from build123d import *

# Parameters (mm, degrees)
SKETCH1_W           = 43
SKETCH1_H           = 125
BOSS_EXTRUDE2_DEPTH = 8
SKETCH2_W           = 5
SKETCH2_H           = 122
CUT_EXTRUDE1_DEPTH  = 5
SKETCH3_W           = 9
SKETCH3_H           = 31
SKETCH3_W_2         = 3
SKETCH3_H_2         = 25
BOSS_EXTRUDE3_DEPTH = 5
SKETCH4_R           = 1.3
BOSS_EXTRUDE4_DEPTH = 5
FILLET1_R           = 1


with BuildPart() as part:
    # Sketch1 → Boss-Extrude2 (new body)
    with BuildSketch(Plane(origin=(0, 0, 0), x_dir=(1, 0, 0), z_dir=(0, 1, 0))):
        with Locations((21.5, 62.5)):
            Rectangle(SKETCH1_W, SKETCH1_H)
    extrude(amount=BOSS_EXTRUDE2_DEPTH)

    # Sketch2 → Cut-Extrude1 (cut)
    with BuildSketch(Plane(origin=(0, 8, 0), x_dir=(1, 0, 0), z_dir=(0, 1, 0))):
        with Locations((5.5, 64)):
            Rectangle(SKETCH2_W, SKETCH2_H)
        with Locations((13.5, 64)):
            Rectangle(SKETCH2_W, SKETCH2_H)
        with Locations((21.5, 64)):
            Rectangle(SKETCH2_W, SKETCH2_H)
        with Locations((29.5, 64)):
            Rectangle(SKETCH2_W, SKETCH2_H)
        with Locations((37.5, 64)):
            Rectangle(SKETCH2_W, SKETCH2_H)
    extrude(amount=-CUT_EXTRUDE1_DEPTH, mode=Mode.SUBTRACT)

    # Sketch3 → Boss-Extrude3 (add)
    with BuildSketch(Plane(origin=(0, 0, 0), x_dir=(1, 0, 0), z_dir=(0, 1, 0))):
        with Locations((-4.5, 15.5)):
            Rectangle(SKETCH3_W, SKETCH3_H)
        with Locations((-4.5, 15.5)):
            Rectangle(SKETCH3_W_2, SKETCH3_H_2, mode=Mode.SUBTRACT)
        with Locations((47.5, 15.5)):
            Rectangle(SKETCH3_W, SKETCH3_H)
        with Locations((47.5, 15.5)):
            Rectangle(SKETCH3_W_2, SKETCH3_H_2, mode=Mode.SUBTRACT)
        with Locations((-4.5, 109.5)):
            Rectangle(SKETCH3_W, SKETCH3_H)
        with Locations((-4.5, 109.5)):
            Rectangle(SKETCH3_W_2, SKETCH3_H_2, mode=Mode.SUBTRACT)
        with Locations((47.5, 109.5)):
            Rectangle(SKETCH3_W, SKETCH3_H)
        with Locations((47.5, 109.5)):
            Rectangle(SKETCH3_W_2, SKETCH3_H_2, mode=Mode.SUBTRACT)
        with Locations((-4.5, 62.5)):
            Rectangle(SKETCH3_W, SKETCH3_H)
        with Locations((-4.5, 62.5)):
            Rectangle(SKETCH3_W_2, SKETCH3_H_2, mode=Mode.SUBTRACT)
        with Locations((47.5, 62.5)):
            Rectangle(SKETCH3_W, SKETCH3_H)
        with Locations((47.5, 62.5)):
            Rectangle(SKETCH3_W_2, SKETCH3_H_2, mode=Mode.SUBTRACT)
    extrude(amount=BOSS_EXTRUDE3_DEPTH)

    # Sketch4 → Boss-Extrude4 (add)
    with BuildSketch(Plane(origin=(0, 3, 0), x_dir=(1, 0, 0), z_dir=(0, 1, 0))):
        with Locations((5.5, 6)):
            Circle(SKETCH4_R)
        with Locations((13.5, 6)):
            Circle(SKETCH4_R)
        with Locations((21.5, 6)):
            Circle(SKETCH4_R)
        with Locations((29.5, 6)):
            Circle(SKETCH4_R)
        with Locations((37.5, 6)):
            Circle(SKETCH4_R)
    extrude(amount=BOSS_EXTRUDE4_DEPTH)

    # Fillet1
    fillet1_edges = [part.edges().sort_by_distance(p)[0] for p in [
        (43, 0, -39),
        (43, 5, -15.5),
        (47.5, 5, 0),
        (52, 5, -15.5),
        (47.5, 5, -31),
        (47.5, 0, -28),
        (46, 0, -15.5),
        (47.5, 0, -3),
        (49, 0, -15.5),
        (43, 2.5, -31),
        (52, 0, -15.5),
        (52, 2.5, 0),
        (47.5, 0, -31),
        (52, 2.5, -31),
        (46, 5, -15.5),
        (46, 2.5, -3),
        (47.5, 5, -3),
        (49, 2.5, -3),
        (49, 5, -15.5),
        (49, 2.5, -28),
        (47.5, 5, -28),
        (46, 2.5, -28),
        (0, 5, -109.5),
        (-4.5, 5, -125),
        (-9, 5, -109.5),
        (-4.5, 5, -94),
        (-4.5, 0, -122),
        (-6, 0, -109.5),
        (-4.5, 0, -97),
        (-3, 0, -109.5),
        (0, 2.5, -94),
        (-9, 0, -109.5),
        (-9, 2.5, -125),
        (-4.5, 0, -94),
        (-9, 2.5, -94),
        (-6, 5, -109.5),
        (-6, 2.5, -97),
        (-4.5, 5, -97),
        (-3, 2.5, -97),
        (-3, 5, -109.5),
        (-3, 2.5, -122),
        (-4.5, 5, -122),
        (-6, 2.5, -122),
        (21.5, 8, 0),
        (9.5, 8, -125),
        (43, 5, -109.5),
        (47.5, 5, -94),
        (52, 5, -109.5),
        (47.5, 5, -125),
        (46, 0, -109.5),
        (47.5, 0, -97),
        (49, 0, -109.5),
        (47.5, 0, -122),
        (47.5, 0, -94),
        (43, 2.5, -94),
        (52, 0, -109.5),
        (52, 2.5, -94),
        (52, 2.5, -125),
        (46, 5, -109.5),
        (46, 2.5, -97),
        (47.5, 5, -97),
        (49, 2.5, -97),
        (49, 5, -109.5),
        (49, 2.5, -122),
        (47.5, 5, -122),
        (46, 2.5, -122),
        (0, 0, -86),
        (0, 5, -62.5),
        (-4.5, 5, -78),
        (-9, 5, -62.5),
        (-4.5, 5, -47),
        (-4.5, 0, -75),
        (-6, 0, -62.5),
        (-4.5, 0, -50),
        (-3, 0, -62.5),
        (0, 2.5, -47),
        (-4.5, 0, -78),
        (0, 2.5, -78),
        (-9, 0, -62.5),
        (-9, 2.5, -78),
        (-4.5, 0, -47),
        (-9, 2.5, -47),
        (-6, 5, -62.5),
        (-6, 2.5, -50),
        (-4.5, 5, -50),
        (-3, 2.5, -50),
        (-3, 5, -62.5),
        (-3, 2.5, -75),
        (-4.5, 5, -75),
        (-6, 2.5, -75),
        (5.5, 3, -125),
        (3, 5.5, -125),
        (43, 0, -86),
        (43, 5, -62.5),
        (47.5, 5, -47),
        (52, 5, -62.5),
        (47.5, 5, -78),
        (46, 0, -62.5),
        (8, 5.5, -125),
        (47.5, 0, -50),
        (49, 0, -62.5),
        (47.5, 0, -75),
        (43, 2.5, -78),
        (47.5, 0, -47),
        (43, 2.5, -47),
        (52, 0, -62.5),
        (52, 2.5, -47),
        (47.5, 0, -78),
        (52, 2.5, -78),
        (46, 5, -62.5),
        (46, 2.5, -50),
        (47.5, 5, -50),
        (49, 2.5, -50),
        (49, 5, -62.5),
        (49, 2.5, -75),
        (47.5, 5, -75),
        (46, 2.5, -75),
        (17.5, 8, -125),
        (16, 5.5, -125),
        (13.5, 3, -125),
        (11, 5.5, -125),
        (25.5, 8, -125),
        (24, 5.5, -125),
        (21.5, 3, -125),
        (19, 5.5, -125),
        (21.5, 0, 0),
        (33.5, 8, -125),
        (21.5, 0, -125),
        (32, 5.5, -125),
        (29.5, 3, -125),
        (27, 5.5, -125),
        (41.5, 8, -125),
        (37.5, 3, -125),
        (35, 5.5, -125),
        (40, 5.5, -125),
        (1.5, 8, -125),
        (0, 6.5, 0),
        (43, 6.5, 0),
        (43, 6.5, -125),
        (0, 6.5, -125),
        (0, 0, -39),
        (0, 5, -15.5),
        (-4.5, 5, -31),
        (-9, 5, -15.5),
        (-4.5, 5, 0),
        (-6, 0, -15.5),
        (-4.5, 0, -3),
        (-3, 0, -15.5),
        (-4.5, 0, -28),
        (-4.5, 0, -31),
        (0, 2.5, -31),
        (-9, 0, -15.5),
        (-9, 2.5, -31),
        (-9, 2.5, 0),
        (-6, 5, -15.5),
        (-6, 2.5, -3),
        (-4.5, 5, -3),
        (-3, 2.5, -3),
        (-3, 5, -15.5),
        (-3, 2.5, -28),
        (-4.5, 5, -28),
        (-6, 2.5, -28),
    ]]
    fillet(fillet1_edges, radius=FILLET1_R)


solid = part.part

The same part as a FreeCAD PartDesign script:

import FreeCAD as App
import Part
import Sketcher


def edges_at(feature, points):
    """Names of the edges that pass closest to the given points."""
    edges = feature.Shape.Edges
    near = lambda p: min(range(len(edges)), key=lambda i: edges[i].distToShape(Part.Vertex(*p))[0])
    return sorted({f"Edge{near(p) + 1}" for p in points})


def add_polygon(sketch, points):
    """Adds a closed chain of lines whose ends are joined by coincident constraints."""
    first, n = sketch.GeometryCount, len(points)
    for a, b in zip(points, points[1:] + points[:1]):
        sketch.addGeometry(Part.LineSegment(App.Vector(*a, 0), App.Vector(*b, 0)), False)
    for i in range(n):
        sketch.addConstraint(Sketcher.Constraint("Coincident", first + i, 2, first + (i + 1) % n, 1))

doc = App.newDocument("Part")
body = doc.addObject("PartDesign::Body", "Body")

# Sketch on XZ plane
sketch1 = body.newObject("Sketcher::SketchObject", "Sketch")
sketch1.AttachmentSupport = (doc.getObject("XZ_Plane"), [""])
sketch1.MapMode = "FlatFace"
add_polygon(sketch1, [(0, -125), (0, 0), (43, 0), (43, -125)])  # lines 0-3
sketch1.addConstraint(Sketcher.Constraint("Vertical", 0))
sketch1.addConstraint(Sketcher.Constraint("Horizontal", 1))
sketch1.addConstraint(Sketcher.Constraint("Vertical", 2))
sketch1.addConstraint(Sketcher.Constraint("Horizontal", 3))
sketch1.addConstraint(Sketcher.Constraint("Coincident", 0, 2, -1, 1))
sketch1.addConstraint(Sketcher.Constraint("DistanceX", 1, 1, 1, 2, 43.0))
sketch1.addConstraint(Sketcher.Constraint("DistanceY", 0, 1, 0, 2, 125.0))
pad1 = body.newObject("PartDesign::Pad", "Pad")
pad1.Profile = sketch1
pad1.Length = 8
pad1.Reversed = True

# Sketch on XZ plane
sketch2 = body.newObject("Sketcher::SketchObject", "Sketch001")
sketch2.AttachmentSupport = (doc.getObject("XZ_Plane"), [""])
sketch2.MapMode = "FlatFace"
sketch2.AttachmentOffset = App.Placement(App.Vector(0, 0, -8), App.Rotation())
add_polygon(sketch2, [(3, -125), (3, -3), (8, -3), (8, -125)])  # lines 0-3
add_polygon(sketch2, [(11, -125), (11, -3), (16, -3), (16, -125)])  # lines 4-7
add_polygon(sketch2, [(19, -125), (19, -3), (24, -3), (24, -125)])  # lines 8-11
add_polygon(sketch2, [(27, -125), (27, -3), (32, -3), (32, -125)])  # lines 12-15
add_polygon(sketch2, [(35, -125), (35, -3), (40, -3), (40, -125)])  # lines 16-19
sketch2.addConstraint(Sketcher.Constraint("Vertical", 0))
sketch2.addConstraint(Sketcher.Constraint("Horizontal", 1))
sketch2.addConstraint(Sketcher.Constraint("Vertical", 2))
sketch2.addConstraint(Sketcher.Constraint("Horizontal", 3))
sketch2.addConstraint(Sketcher.Constraint("Vertical", 4))
sketch2.addConstraint(Sketcher.Constraint("Horizontal", 5))
sketch2.addConstraint(Sketcher.Constraint("Vertical", 6))
sketch2.addConstraint(Sketcher.Constraint("Horizontal", 7))
sketch2.addConstraint(Sketcher.Constraint("Vertical", 8))
sketch2.addConstraint(Sketcher.Constraint("Horizontal", 9))
sketch2.addConstraint(Sketcher.Constraint("Vertical", 10))
sketch2.addConstraint(Sketcher.Constraint("Horizontal", 11))
sketch2.addConstraint(Sketcher.Constraint("Vertical", 12))
sketch2.addConstraint(Sketcher.Constraint("Horizontal", 13))
sketch2.addConstraint(Sketcher.Constraint("Vertical", 14))
sketch2.addConstraint(Sketcher.Constraint("Horizontal", 15))
sketch2.addConstraint(Sketcher.Constraint("Vertical", 16))
sketch2.addConstraint(Sketcher.Constraint("Horizontal", 17))
sketch2.addConstraint(Sketcher.Constraint("Vertical", 18))
sketch2.addConstraint(Sketcher.Constraint("Horizontal", 19))
sketch2.addConstraint(Sketcher.Constraint("Horizontal", 1, 2, 4, 2))
sketch2.addConstraint(Sketcher.Constraint("Horizontal", 3, 2, 6, 2))
sketch2.addConstraint(Sketcher.Constraint("Horizontal", 5, 2, 8, 2))
sketch2.addConstraint(Sketcher.Constraint("Horizontal", 7, 2, 10, 2))
sketch2.addConstraint(Sketcher.Constraint("Horizontal", 9, 2, 12, 2))
sketch2.addConstraint(Sketcher.Constraint("Horizontal", 11, 2, 14, 2))
sketch2.addConstraint(Sketcher.Constraint("Horizontal", 13, 2, 16, 2))
sketch2.addConstraint(Sketcher.Constraint("Horizontal", 15, 2, 18, 2))
sketch2.addConstraint(Sketcher.Constraint("Equal", 3, 5))
sketch2.addConstraint(Sketcher.Constraint("Equal", 7, 9))
sketch2.addConstraint(Sketcher.Constraint("Equal", 11, 13))
sketch2.addConstraint(Sketcher.Constraint("Equal", 15, 17))
sketch2.addConstraint(Sketcher.Constraint("DistanceX", 1, 1, 1, 2, 5.0))
sketch2.addConstraint(Sketcher.Constraint("DistanceY", 0, 1, 0, 2, 122.0))
sketch2.addConstraint(Sketcher.Constraint("DistanceX", -1, 1, 0, 2, 3.0))
sketch2.addConstraint(Sketcher.Constraint("DistanceY", 0, 2, -1, 1, 3.0))
sketch2.addConstraint(Sketcher.Constraint("DistanceX", -1, 1, 4, 2, 11.0))
sketch2.addConstraint(Sketcher.Constraint("DistanceX", -1, 1, 8, 2, 19.0))
sketch2.addConstraint(Sketcher.Constraint("DistanceX", -1, 1, 12, 2, 27.0))
sketch2.addConstraint(Sketcher.Constraint("DistanceX", -1, 1, 16, 2, 35.0))
pocket1 = body.newObject("PartDesign::Pocket", "Pocket")
pocket1.Profile = sketch2
pocket1.Length = 5
pocket1.Reversed = True

# Sketch on XZ plane
sketch3 = body.newObject("Sketcher::SketchObject", "Sketch002")
sketch3.AttachmentSupport = (doc.getObject("XZ_Plane"), [""])
sketch3.MapMode = "FlatFace"
add_polygon(sketch3, [(-9, -31), (-9, 0), (0, 0), (0, -31)])  # lines 0-3
add_polygon(sketch3, [(-3, -3), (-6, -3), (-6, -28), (-3, -28)])  # lines 4-7
add_polygon(sketch3, [(43, -31), (43, 0), (52, 0), (52, -31)])  # lines 8-11
add_polygon(sketch3, [(49, -3), (46, -3), (46, -28), (49, -28)])  # lines 12-15
add_polygon(sketch3, [(-9, -125), (-9, -94), (0, -94), (0, -125)])  # lines 16-19
add_polygon(sketch3, [(-3, -97), (-6, -97), (-6, -122), (-3, -122)])  # lines 20-23
add_polygon(sketch3, [(43, -125), (43, -94), (52, -94), (52, -125)])  # lines 24-27
add_polygon(sketch3, [(49, -97), (46, -97), (46, -122), (49, -122)])  # lines 28-31
add_polygon(sketch3, [(-9, -78), (-9, -47), (0, -47), (0, -78)])  # lines 32-35
add_polygon(sketch3, [(-3, -50), (-6, -50), (-6, -75), (-3, -75)])  # lines 36-39
add_polygon(sketch3, [(43, -78), (43, -47), (52, -47), (52, -78)])  # lines 40-43
add_polygon(sketch3, [(49, -50), (46, -50), (46, -75), (49, -75)])  # lines 44-47
sketch3.addConstraint(Sketcher.Constraint("Vertical", 0))
sketch3.addConstraint(Sketcher.Constraint("Horizontal", 1))
sketch3.addConstraint(Sketcher.Constraint("Vertical", 2))
sketch3.addConstraint(Sketcher.Constraint("Horizontal", 3))
sketch3.addConstraint(Sketcher.Constraint("Horizontal", 4))
sketch3.addConstraint(Sketcher.Constraint("Vertical", 5))
sketch3.addConstraint(Sketcher.Constraint("Horizontal", 6))
sketch3.addConstraint(Sketcher.Constraint("Vertical", 7))
sketch3.addConstraint(Sketcher.Constraint("Vertical", 8))
sketch3.addConstraint(Sketcher.Constraint("Horizontal", 9))
sketch3.addConstraint(Sketcher.Constraint("Vertical", 10))
sketch3.addConstraint(Sketcher.Constraint("Horizontal", 11))
sketch3.addConstraint(Sketcher.Constraint("Horizontal", 12))
sketch3.addConstraint(Sketcher.Constraint("Vertical", 13))
sketch3.addConstraint(Sketcher.Constraint("Horizontal", 14))
sketch3.addConstraint(Sketcher.Constraint("Vertical", 15))
sketch3.addConstraint(Sketcher.Constraint("Vertical", 16))
sketch3.addConstraint(Sketcher.Constraint("Horizontal", 17))
sketch3.addConstraint(Sketcher.Constraint("Vertical", 18))
sketch3.addConstraint(Sketcher.Constraint("Horizontal", 19))
sketch3.addConstraint(Sketcher.Constraint("Horizontal", 20))
sketch3.addConstraint(Sketcher.Constraint("Vertical", 21))
sketch3.addConstraint(Sketcher.Constraint("Horizontal", 22))
sketch3.addConstraint(Sketcher.Constraint("Vertical", 23))
sketch3.addConstraint(Sketcher.Constraint("Vertical", 24))
sketch3.addConstraint(Sketcher.Constraint("Horizontal", 25))
sketch3.addConstraint(Sketcher.Constraint("Vertical", 26))
sketch3.addConstraint(Sketcher.Constraint("Horizontal", 27))
sketch3.addConstraint(Sketcher.Constraint("Horizontal", 28))
sketch3.addConstraint(Sketcher.Constraint("Vertical", 29))
sketch3.addConstraint(Sketcher.Constraint("Horizontal", 30))
sketch3.addConstraint(Sketcher.Constraint("Vertical", 31))
sketch3.addConstraint(Sketcher.Constraint("Vertical", 32))
sketch3.addConstraint(Sketcher.Constraint("Horizontal", 33))
sketch3.addConstraint(Sketcher.Constraint("Vertical", 34))
sketch3.addConstraint(Sketcher.Constraint("Horizontal", 35))
sketch3.addConstraint(Sketcher.Constraint("Horizontal", 36))
sketch3.addConstraint(Sketcher.Constraint("Vertical", 37))
sketch3.addConstraint(Sketcher.Constraint("Horizontal", 38))
sketch3.addConstraint(Sketcher.Constraint("Vertical", 39))
sketch3.addConstraint(Sketcher.Constraint("Vertical", 40))
sketch3.addConstraint(Sketcher.Constraint("Horizontal", 41))
sketch3.addConstraint(Sketcher.Constraint("Vertical", 42))
sketch3.addConstraint(Sketcher.Constraint("Horizontal", 43))
sketch3.addConstraint(Sketcher.Constraint("Horizontal", 44))
sketch3.addConstraint(Sketcher.Constraint("Vertical", 45))
sketch3.addConstraint(Sketcher.Constraint("Horizontal", 46))
sketch3.addConstraint(Sketcher.Constraint("Vertical", 47))
sketch3.addConstraint(Sketcher.Constraint("Coincident", 1, 2, -1, 1))
sketch3.addConstraint(Sketcher.Constraint("PointOnObject", 8, 2, -1))
sketch3.addConstraint(Sketcher.Constraint("PointOnObject", 17, 2, -2))
sketch3.addConstraint(Sketcher.Constraint("PointOnObject", 33, 2, -2))
sketch3.addConstraint(Sketcher.Constraint("Horizontal", 3, 2, 10, 2))
sketch3.addConstraint(Sketcher.Constraint("Horizontal", 7, 2, 12, 2))
sketch3.addConstraint(Sketcher.Constraint("Horizontal", 6, 2, 13, 2))
sketch3.addConstraint(Sketcher.Constraint("Horizontal", 17, 2, 24, 2))
sketch3.addConstraint(Sketcher.Constraint("Horizontal", 19, 2, 26, 2))
sketch3.addConstraint(Sketcher.Constraint("Horizontal", 23, 2, 28, 2))
sketch3.addConstraint(Sketcher.Constraint("Horizontal", 22, 2, 29, 2))
sketch3.addConstraint(Sketcher.Constraint("Horizontal", 33, 2, 40, 2))
sketch3.addConstraint(Sketcher.Constraint("Horizontal", 35, 2, 42, 2))
sketch3.addConstraint(Sketcher.Constraint("Horizontal", 39, 2, 44, 2))
sketch3.addConstraint(Sketcher.Constraint("Horizontal", 38, 2, 45, 2))
sketch3.addConstraint(Sketcher.Constraint("Vertical", 3, 2, 16, 2))
sketch3.addConstraint(Sketcher.Constraint("Vertical", 5, 2, 20, 2))
sketch3.addConstraint(Sketcher.Constraint("Vertical", 7, 2, 22, 2))
sketch3.addConstraint(Sketcher.Constraint("Vertical", 11, 2, 24, 2))
sketch3.addConstraint(Sketcher.Constraint("Vertical", 10, 2, 25, 2))
sketch3.addConstraint(Sketcher.Constraint("Vertical", 13, 2, 28, 2))
sketch3.addConstraint(Sketcher.Constraint("Vertical", 15, 2, 30, 2))
sketch3.addConstraint(Sketcher.Constraint("Vertical", 19, 2, 32, 2))
sketch3.addConstraint(Sketcher.Constraint("Vertical", 21, 2, 36, 2))
sketch3.addConstraint(Sketcher.Constraint("Vertical", 23, 2, 38, 2))
sketch3.addConstraint(Sketcher.Constraint("Vertical", 27, 2, 40, 2))
sketch3.addConstraint(Sketcher.Constraint("Vertical", 26, 2, 41, 2))
sketch3.addConstraint(Sketcher.Constraint("Vertical", 29, 2, 44, 2))
sketch3.addConstraint(Sketcher.Constraint("Vertical", 31, 2, 46, 2))
sketch3.addConstraint(Sketcher.Constraint("Equal", 3, 9))
sketch3.addConstraint(Sketcher.Constraint("Equal", 6, 12))
sketch3.addConstraint(Sketcher.Constraint("Equal", 10, 16))
sketch3.addConstraint(Sketcher.Constraint("Equal", 15, 21))
sketch3.addConstraint(Sketcher.Constraint("Equal", 26, 32))
sketch3.addConstraint(Sketcher.Constraint("Equal", 31, 37))
sketch3.addConstraint(Sketcher.Constraint("DistanceX", 1, 1, 1, 2, 9.0))
sketch3.addConstraint(Sketcher.Constraint("DistanceX", 4, 2, 4, 1, 3.0))
sketch3.addConstraint(Sketcher.Constraint("DistanceY", 0, 1, 0, 2, 31.0))
sketch3.addConstraint(Sketcher.Constraint("DistanceY", 5, 2, 5, 1, 25.0))
sketch3.addConstraint(Sketcher.Constraint("DistanceX", 4, 2, -1, 1, 6.0))
sketch3.addConstraint(Sketcher.Constraint("DistanceY", 4, 2, -1, 1, 3.0))
sketch3.addConstraint(Sketcher.Constraint("DistanceX", -1, 1, 8, 2, 43.0))
sketch3.addConstraint(Sketcher.Constraint("DistanceX", -1, 1, 12, 2, 46.0))
sketch3.addConstraint(Sketcher.Constraint("DistanceY", 16, 2, -1, 1, 94.0))
sketch3.addConstraint(Sketcher.Constraint("DistanceY", 20, 2, -1, 1, 97.0))
sketch3.addConstraint(Sketcher.Constraint("DistanceY", 32, 2, -1, 1, 47.0))
sketch3.addConstraint(Sketcher.Constraint("DistanceY", 36, 2, -1, 1, 50.0))
pad2 = body.newObject("PartDesign::Pad", "Pad001")
pad2.Profile = sketch3
pad2.Length = 5
pad2.Reversed = True

# Sketch on XZ plane
sketch4 = body.newObject("Sketcher::SketchObject", "Sketch003")
sketch4.AttachmentSupport = (doc.getObject("XZ_Plane"), [""])
sketch4.MapMode = "FlatFace"
sketch4.AttachmentOffset = App.Placement(App.Vector(0, 0, -3), App.Rotation())
sketch4.addGeometry(Part.Circle(App.Vector(5.5, -6, 0), App.Vector(0, 0, 1), 1.3), False)
sketch4.addGeometry(Part.Circle(App.Vector(13.5, -6, 0), App.Vector(0, 0, 1), 1.3), False)
sketch4.addGeometry(Part.Circle(App.Vector(21.5, -6, 0), App.Vector(0, 0, 1), 1.3), False)
sketch4.addGeometry(Part.Circle(App.Vector(29.5, -6, 0), App.Vector(0, 0, 1), 1.3), False)
sketch4.addGeometry(Part.Circle(App.Vector(37.5, -6, 0), App.Vector(0, 0, 1), 1.3), False)
sketch4.addConstraint(Sketcher.Constraint("Equal", 0, 1))
sketch4.addConstraint(Sketcher.Constraint("Equal", 1, 2))
sketch4.addConstraint(Sketcher.Constraint("Equal", 2, 3))
sketch4.addConstraint(Sketcher.Constraint("Equal", 3, 4))
sketch4.addConstraint(Sketcher.Constraint("Horizontal", 0, 3, 1, 3))
sketch4.addConstraint(Sketcher.Constraint("Horizontal", 1, 3, 2, 3))
sketch4.addConstraint(Sketcher.Constraint("Horizontal", 2, 3, 3, 3))
sketch4.addConstraint(Sketcher.Constraint("Horizontal", 3, 3, 4, 3))
sketch4.addConstraint(Sketcher.Constraint("Diameter", 0, 2.6))
sketch4.addConstraint(Sketcher.Constraint("DistanceY", 0, 3, -1, 1, 6.0))
sketch4.addConstraint(Sketcher.Constraint("DistanceX", 0, 3, 1, 3, 8.0))
sketch4.addConstraint(Sketcher.Constraint("DistanceX", 1, 3, 2, 3, 8.0))
sketch4.addConstraint(Sketcher.Constraint("DistanceX", 2, 3, 3, 3, 8.0))
sketch4.addConstraint(Sketcher.Constraint("DistanceX", 3, 3, 4, 3, 8.0))
sketch4.addConstraint(Sketcher.Constraint("DistanceX", -1, 1, 0, 3, 5.5))
pad3 = body.newObject("PartDesign::Pad", "Pad002")
pad3.Profile = sketch4
pad3.Length = 5
pad3.Reversed = True
doc.recompute()

fillet = body.newObject("PartDesign::Fillet", "Fillet")
fillet.Base = (pad3, edges_at(pad3, [
    (43, 0, -39),
    (43, 5, -15.5),
    (47.5, 5, 0),
    (52, 5, -15.5),
    (47.5, 5, -31),
    (47.5, 0, -28),
    (46, 0, -15.5),
    (47.5, 0, -3),
    (49, 0, -15.5),
    (43, 2.5, -31),
    (52, 0, -15.5),
    (52, 2.5, 0),
    (47.5, 0, -31),
    (52, 2.5, -31),
    (46, 5, -15.5),
    (46, 2.5, -3),
    (47.5, 5, -3),
    (49, 2.5, -3),
    (49, 5, -15.5),
    (49, 2.5, -28),
    (47.5, 5, -28),
    (46, 2.5, -28),
    (0, 5, -109.5),
    (-4.5, 5, -125),
    (-9, 5, -109.5),
    (-4.5, 5, -94),
    (-4.5, 0, -122),
    (-6, 0, -109.5),
    (-4.5, 0, -97),
    (-3, 0, -109.5),
    (0, 2.5, -94),
    (-9, 0, -109.5),
    (-9, 2.5, -125),
    (-4.5, 0, -94),
    (-9, 2.5, -94),
    (-6, 5, -109.5),
    (-6, 2.5, -97),
    (-4.5, 5, -97),
    (-3, 2.5, -97),
    (-3, 5, -109.5),
    (-3, 2.5, -122),
    (-4.5, 5, -122),
    (-6, 2.5, -122),
    (21.5, 8, 0),
    (9.5, 8, -125),
    (43, 5, -109.5),
    (47.5, 5, -94),
    (52, 5, -109.5),
    (47.5, 5, -125),
    (46, 0, -109.5),
    (47.5, 0, -97),
    (49, 0, -109.5),
    (47.5, 0, -122),
    (47.5, 0, -94),
    (43, 2.5, -94),
    (52, 0, -109.5),
    (52, 2.5, -94),
    (52, 2.5, -125),
    (46, 5, -109.5),
    (46, 2.5, -97),
    (47.5, 5, -97),
    (49, 2.5, -97),
    (49, 5, -109.5),
    (49, 2.5, -122),
    (47.5, 5, -122),
    (46, 2.5, -122),
    (0, 0, -86),
    (0, 5, -62.5),
    (-4.5, 5, -78),
    (-9, 5, -62.5),
    (-4.5, 5, -47),
    (-4.5, 0, -75),
    (-6, 0, -62.5),
    (-4.5, 0, -50),
    (-3, 0, -62.5),
    (0, 2.5, -47),
    (-4.5, 0, -78),
    (0, 2.5, -78),
    (-9, 0, -62.5),
    (-9, 2.5, -78),
    (-4.5, 0, -47),
    (-9, 2.5, -47),
    (-6, 5, -62.5),
    (-6, 2.5, -50),
    (-4.5, 5, -50),
    (-3, 2.5, -50),
    (-3, 5, -62.5),
    (-3, 2.5, -75),
    (-4.5, 5, -75),
    (-6, 2.5, -75),
    (5.5, 3, -125),
    (3, 5.5, -125),
    (43, 0, -86),
    (43, 5, -62.5),
    (47.5, 5, -47),
    (52, 5, -62.5),
    (47.5, 5, -78),
    (46, 0, -62.5),
    (8, 5.5, -125),
    (47.5, 0, -50),
    (49, 0, -62.5),
    (47.5, 0, -75),
    (43, 2.5, -78),
    (47.5, 0, -47),
    (43, 2.5, -47),
    (52, 0, -62.5),
    (52, 2.5, -47),
    (47.5, 0, -78),
    (52, 2.5, -78),
    (46, 5, -62.5),
    (46, 2.5, -50),
    (47.5, 5, -50),
    (49, 2.5, -50),
    (49, 5, -62.5),
    (49, 2.5, -75),
    (47.5, 5, -75),
    (46, 2.5, -75),
    (17.5, 8, -125),
    (16, 5.5, -125),
    (13.5, 3, -125),
    (11, 5.5, -125),
    (25.5, 8, -125),
    (24, 5.5, -125),
    (21.5, 3, -125),
    (19, 5.5, -125),
    (21.5, 0, 0),
    (33.5, 8, -125),
    (21.5, 0, -125),
    (32, 5.5, -125),
    (29.5, 3, -125),
    (27, 5.5, -125),
    (41.5, 8, -125),
    (37.5, 3, -125),
    (35, 5.5, -125),
    (40, 5.5, -125),
    (1.5, 8, -125),
    (0, 6.5, 0),
    (43, 6.5, 0),
    (43, 6.5, -125),
    (0, 6.5, -125),
    (0, 0, -39),
    (0, 5, -15.5),
    (-4.5, 5, -31),
    (-9, 5, -15.5),
    (-4.5, 5, 0),
    (-6, 0, -15.5),
    (-4.5, 0, -3),
    (-3, 0, -15.5),
    (-4.5, 0, -28),
    (-4.5, 0, -31),
    (0, 2.5, -31),
    (-9, 0, -15.5),
    (-9, 2.5, -31),
    (-9, 2.5, 0),
    (-6, 5, -15.5),
    (-6, 2.5, -3),
    (-4.5, 5, -3),
    (-3, 2.5, -3),
    (-3, 5, -15.5),
    (-3, 2.5, -28),
    (-4.5, 5, -28),
    (-6, 2.5, -28),
]))
fillet.Radius = 1

doc.recompute()
